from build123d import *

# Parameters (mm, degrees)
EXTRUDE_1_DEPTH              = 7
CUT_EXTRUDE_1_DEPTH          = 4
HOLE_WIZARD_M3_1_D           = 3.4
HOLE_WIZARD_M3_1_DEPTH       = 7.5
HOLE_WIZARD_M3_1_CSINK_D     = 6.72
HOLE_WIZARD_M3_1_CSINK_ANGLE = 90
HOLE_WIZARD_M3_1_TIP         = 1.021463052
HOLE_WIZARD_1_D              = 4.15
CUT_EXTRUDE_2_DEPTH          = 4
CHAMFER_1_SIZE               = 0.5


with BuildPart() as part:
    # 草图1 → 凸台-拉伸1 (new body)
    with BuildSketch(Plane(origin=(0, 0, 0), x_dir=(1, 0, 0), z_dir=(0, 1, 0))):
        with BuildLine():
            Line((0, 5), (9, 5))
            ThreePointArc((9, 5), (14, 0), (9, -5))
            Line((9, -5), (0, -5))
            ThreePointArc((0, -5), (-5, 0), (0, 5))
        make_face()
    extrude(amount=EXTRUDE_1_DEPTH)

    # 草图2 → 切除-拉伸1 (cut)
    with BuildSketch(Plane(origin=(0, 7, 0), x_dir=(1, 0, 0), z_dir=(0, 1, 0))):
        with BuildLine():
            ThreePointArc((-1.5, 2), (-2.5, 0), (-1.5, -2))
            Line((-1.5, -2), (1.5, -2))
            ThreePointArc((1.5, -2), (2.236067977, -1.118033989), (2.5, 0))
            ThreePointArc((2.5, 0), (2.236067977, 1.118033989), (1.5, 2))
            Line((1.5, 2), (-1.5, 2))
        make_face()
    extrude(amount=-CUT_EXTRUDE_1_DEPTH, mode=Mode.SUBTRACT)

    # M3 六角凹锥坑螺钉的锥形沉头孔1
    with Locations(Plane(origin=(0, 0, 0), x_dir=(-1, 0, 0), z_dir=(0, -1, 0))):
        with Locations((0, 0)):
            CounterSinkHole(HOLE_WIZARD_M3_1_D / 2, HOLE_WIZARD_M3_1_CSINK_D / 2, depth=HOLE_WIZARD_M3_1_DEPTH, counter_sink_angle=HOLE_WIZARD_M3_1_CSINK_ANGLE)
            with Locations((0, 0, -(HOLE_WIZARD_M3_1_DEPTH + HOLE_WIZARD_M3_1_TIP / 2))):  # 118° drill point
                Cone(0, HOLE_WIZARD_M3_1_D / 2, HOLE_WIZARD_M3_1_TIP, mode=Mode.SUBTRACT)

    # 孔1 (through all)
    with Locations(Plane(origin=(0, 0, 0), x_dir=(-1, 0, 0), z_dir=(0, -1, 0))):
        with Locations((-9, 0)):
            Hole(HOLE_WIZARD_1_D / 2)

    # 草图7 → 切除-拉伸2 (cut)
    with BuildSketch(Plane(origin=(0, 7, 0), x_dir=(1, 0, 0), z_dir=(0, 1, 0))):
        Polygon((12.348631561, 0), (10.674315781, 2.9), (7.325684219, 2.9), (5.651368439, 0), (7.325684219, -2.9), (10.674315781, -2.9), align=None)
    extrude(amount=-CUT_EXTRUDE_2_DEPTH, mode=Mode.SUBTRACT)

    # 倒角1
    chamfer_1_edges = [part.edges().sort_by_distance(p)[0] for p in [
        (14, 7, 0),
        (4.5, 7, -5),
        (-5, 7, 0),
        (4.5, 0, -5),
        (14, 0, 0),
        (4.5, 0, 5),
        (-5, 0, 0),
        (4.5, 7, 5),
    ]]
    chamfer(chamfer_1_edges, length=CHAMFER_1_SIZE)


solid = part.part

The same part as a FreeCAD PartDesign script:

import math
import FreeCAD as App
import Part
import Sketcher
Q = App.Units.Quantity


def edges_at(feature, points):
    """Names of the edges that pass closest to the given points."""
    edges = feature.Shape.Edges
    near = lambda p: min(range(len(edges)), key=lambda i: edges[i].distToShape(Part.Vertex(*p))[0])
    return sorted({f"Edge{near(p) + 1}" for p in points})


def add_polygon(sketch, points):
    """Adds a closed chain of lines whose ends are joined by coincident constraints."""
    first, n = sketch.GeometryCount, len(points)
    for a, b in zip(points, points[1:] + points[:1]):
        sketch.addGeometry(Part.LineSegment(App.Vector(*a, 0), App.Vector(*b, 0)), False)
    for i in range(n):
        sketch.addConstraint(Sketcher.Constraint("Coincident", first + i, 2, first + (i + 1) % n, 1))

doc = App.newDocument("Part")
body = doc.addObject("PartDesign::Body", "Body")

sketch1 = body.newObject("Sketcher::SketchObject", "Sketch")
sketch1.AttachmentSupport = (doc.getObject("XZ_Plane"), [""])
sketch1.MapMode = "FlatFace"
sketch1.addGeometry([
    Part.LineSegment(App.Vector(9, -5, 0), App.Vector(0, -5, 0)),
    Part.ArcOfCircle(Part.Circle(App.Vector(0, 0, 0), App.Vector(0, 0, 1), 5), math.radians(90), math.radians(270)),
    Part.LineSegment(App.Vector(0, 5, 0), App.Vector(9, 5, 0)),
    Part.ArcOfCircle(Part.Circle(App.Vector(9, 0, 0), App.Vector(0, 0, 1), 5), math.radians(-90), math.radians(90)),
], False)
sketch1.addConstraint([
    Sketcher.Constraint("Tangent", 0, 2, 1, 2),
    Sketcher.Constraint("Tangent", 1, 1, 2, 1),
    Sketcher.Constraint("Tangent", 2, 2, 3, 2),
    Sketcher.Constraint("Tangent", 3, 1, 0, 1),
    Sketcher.Constraint("Horizontal", 0),
    Sketcher.Constraint("Horizontal", 2),
    Sketcher.Constraint("Coincident", 1, 3, -1, 1),
    Sketcher.Constraint("Radius", 1, Q("5 mm")),
    Sketcher.Constraint("DistanceX", 0, 2, 0, 1, Q("9 mm")),
])
pad1 = body.newObject("PartDesign::Pad", "Pad")
pad1.Profile = sketch1
pad1.Length = 7
pad1.Reversed = True

sketch2 = body.newObject("Sketcher::SketchObject", "Sketch001")
sketch2.AttachmentSupport = (doc.getObject("XZ_Plane"), [""])
sketch2.MapMode = "FlatFace"
sketch2.AttachmentOffset = App.Placement(App.Vector(0, 0, -7), App.Rotation())
sketch2.addGeometry([
    Part.ArcOfCircle(Part.Circle(App.Vector(0, 0, 0), App.Vector(0, 0, 1), 2.5), math.radians(127), math.radians(233)),
    Part.LineSegment(App.Vector(-1.5, 2, 0), App.Vector(1.5, 2, 0)),
    Part.ArcOfCircle(Part.Circle(App.Vector(0, 0, 0), App.Vector(0, 0, 1), 2.5), math.radians(0), math.radians(53)),
    Part.ArcOfCircle(Part.Circle(App.Vector(0, 0, 0), App.Vector(0, 0, 1), 2.5), math.radians(-53), math.radians(0)),
    Part.LineSegment(App.Vector(1.5, -2, 0), App.Vector(-1.5, -2, 0)),
], False)
sketch2.addConstraint([
    Sketcher.Constraint("Coincident", 0, 1, 1, 1),
    Sketcher.Constraint("Coincident", 1, 2, 2, 2),
    Sketcher.Constraint("Tangent", 2, 1, 3, 2),
    Sketcher.Constraint("Coincident", 3, 1, 4, 1),
    Sketcher.Constraint("Coincident", 4, 2, 0, 2),
    Sketcher.Constraint("Horizontal", 1),
    Sketcher.Constraint("Horizontal", 4),
    Sketcher.Constraint("Coincident", 0, 3, -1, 1),
    Sketcher.Constraint("Coincident", 2, 3, -1, 1),
    Sketcher.Constraint("Equal", 0, 2),
    Sketcher.Constraint("Equal", 2, 3),
    Sketcher.Constraint("PointOnObject", 2, 1, -1),
    Sketcher.Constraint("Vertical", 1, 2, 3, 1),
    Sketcher.Constraint("Radius", 0, Q("2.5 mm")),
    Sketcher.Constraint("DistanceX", 1, 1, 1, 2, Q("3 mm")),
])
pocket1 = body.newObject("PartDesign::Pocket", "Pocket")
pocket1.Profile = sketch2
pocket1.Length = 4
pocket1.Reversed = True

sketch3 = body.newObject("Sketcher::SketchObject", "Sketch002")
sketch3.AttachmentSupport = (doc.getObject("XZ_Plane"), [""])
sketch3.MapMode = "FlatFace"
sketch3.addGeometry(Part.Circle(App.Vector(0, 0, 0), App.Vector(0, 0, 1), 1.7), False)
sketch3.addConstraint([
    Sketcher.Constraint("Coincident", 0, 3, -1, 1),
    Sketcher.Constraint("Diameter", 0, Q("3.4 mm")),
])
doc.recompute()
hole = body.newObject("PartDesign::Hole", "Hole")
hole.Profile = sketch3
hole.ThreadType = "None"
hole.Diameter = 3.4
hole.DepthType = "Dimension"
hole.Depth = 7.5
hole.DrillPoint = "Angled"
hole.DrillPointAngle = 118
hole.HoleCutType = "Countersink"
hole.HoleCutDiameter = 6.72
hole.HoleCutCountersinkAngle = 90

sketch4 = body.newObject("Sketcher::SketchObject", "Sketch003")
sketch4.AttachmentSupport = (doc.getObject("XZ_Plane"), [""])
sketch4.MapMode = "FlatFace"
sketch4.addGeometry(Part.Circle(App.Vector(9, 0, 0), App.Vector(0, 0, 1), 2.1), False)
sketch4.addConstraint([
    Sketcher.Constraint("PointOnObject", 0, 3, -1),
    Sketcher.Constraint("Diameter", 0, Q("4.15 mm")),
    Sketcher.Constraint("DistanceX", -1, 1, 0, 3, Q("9 mm")),
])
doc.recompute()
hole2 = body.newObject("PartDesign::Hole", "Hole001")
hole2.Profile = sketch4
hole2.ThreadType = "None"
hole2.Diameter = 4.15
hole2.DepthType = "ThroughAll"

sketch5 = body.newObject("Sketcher::SketchObject", "Sketch004")
sketch5.AttachmentSupport = (doc.getObject("XZ_Plane"), [""])
sketch5.MapMode = "FlatFace"
sketch5.AttachmentOffset = App.Placement(App.Vector(0, 0, -7), App.Rotation())
add_polygon(sketch5, [(12.3, 0), (10.7, -2.9), (7.3, -2.9), (5.7, 0), (7.3, 2.9), (10.7, 2.9)])
sketch5.addConstraint([
    Sketcher.Constraint("Horizontal", 1),
    Sketcher.Constraint("Horizontal", 4),
    Sketcher.Constraint("Symmetric", 1, 2, 3, 2, -1),
    Sketcher.Constraint("PointOnObject", 2, 2, -1),
    Sketcher.Constraint("PointOnObject", 5, 2, -1),
    Sketcher.Constraint("Parallel", 0, 3),
    Sketcher.Constraint("Parallel", 2, 5),
    Sketcher.Constraint("Angle", 0, Q("-120 deg")),
    Sketcher.Constraint("DistanceY", 0, 2, -1, 1, Q("2.9 mm")),
    Sketcher.Constraint("DistanceX", 1, 2, 1, 1, Q("3.348632 mm")),
    Sketcher.Constraint("DistanceX", -1, 1, 2, 2, Q("5.651368 mm")),
])
pocket2 = body.newObject("PartDesign::Pocket", "Pocket001")
pocket2.Profile = sketch5
pocket2.Length = 4
pocket2.Reversed = True
doc.recompute()

chamfer = body.newObject("PartDesign::Chamfer", "Chamfer")
chamfer.Base = (pocket2, edges_at(pocket2, [
    (14, 7, 0),
    (4.5, 7, -5),
    (-5, 7, 0),
    (4.5, 0, -5),
    (14, 0, 0),
    (4.5, 0, 5),
    (-5, 0, 0),
    (4.5, 7, 5),
]))
chamfer.Size = 0.5

doc.recompute()
